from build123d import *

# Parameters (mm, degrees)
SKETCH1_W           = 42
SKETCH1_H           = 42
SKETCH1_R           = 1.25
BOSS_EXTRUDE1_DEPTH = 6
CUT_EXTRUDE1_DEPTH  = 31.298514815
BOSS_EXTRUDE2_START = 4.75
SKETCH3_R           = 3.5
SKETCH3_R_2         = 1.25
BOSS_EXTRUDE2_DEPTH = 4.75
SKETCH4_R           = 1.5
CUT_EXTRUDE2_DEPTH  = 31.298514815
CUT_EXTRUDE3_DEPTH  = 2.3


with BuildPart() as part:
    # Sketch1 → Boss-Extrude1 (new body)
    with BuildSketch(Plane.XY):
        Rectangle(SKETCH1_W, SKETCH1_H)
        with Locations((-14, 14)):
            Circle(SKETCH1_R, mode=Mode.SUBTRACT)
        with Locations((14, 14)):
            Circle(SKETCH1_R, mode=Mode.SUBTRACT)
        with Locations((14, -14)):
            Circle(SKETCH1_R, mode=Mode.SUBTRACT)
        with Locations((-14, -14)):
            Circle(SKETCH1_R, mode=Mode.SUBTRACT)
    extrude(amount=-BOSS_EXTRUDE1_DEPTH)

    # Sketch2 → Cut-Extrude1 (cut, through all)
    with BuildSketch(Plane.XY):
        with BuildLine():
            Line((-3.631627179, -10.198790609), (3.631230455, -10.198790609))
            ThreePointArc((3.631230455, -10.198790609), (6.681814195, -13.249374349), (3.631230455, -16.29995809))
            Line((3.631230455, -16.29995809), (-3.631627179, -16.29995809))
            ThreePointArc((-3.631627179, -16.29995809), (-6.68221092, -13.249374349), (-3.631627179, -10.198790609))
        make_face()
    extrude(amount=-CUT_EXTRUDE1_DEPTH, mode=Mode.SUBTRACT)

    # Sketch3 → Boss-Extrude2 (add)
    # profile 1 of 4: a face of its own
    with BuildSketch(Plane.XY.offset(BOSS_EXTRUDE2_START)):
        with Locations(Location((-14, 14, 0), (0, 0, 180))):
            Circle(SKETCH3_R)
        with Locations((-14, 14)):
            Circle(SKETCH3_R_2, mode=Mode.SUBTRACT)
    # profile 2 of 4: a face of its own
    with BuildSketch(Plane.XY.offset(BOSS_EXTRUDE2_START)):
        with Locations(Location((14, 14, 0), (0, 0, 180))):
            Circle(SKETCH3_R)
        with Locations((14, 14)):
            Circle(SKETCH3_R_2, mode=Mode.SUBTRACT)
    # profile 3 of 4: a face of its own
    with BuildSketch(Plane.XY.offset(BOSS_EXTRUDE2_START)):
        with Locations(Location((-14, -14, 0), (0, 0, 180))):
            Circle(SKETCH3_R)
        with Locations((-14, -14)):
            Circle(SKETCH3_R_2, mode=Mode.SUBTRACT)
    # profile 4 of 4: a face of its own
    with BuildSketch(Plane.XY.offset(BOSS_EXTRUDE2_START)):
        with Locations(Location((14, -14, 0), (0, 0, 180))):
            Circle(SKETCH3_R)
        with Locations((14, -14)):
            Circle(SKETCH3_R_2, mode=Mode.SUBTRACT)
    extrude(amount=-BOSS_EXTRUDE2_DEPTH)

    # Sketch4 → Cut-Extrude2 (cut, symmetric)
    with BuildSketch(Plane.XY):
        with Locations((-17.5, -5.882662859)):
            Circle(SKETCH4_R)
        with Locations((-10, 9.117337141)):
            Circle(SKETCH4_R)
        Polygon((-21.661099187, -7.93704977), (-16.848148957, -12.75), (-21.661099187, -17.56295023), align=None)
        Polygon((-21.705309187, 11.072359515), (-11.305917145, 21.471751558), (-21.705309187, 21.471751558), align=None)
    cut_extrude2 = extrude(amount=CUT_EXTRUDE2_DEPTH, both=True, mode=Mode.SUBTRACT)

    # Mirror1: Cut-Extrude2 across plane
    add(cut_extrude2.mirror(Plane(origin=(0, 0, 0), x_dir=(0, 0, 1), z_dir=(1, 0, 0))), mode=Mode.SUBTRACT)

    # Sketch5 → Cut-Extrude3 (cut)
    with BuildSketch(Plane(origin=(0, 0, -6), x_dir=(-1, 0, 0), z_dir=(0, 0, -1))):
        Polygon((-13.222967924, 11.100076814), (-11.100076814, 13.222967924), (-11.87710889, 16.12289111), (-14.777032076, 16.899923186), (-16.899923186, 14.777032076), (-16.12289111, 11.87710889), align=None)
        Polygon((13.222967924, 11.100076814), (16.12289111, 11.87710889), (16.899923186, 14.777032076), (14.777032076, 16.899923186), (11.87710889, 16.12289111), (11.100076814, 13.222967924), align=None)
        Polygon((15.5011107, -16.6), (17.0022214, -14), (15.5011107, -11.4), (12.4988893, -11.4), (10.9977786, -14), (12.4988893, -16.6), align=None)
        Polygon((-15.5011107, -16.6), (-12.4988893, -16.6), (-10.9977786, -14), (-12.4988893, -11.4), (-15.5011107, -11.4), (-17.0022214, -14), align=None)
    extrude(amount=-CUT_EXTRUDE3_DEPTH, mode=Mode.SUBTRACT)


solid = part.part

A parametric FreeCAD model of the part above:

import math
import FreeCAD as App
import Part
import Sketcher

V = App.Vector
Q = App.Units.Quantity


def add_polygon(sketch, points):
    """Adds a closed chain of lines whose ends are joined by coincident constraints."""
    first, n = sketch.GeometryCount, len(points)
    for a, b in zip(points, points[1:] + points[:1]):
        sketch.addGeometry(Part.LineSegment(App.Vector(*a, 0), App.Vector(*b, 0)), False)
    for i in range(n):
        sketch.addConstraint(Sketcher.Constraint("Coincident", first + i, 2, first + (i + 1) % n, 1))

doc = App.newDocument("Part")
body = doc.addObject("PartDesign::Body", "Body")

# Sketch on XY plane
sketch1 = doc.addObject("Sketcher::SketchObject", "Sketch")
body.addObject(sketch1)
sketch1.AttachmentSupport = (doc.XY_Plane, [""])
sketch1.MapMode = "FlatFace"
add_polygon(sketch1, [(-21, 21), (-21, -21), (21, -21), (21, 21)])  # lines 0-3
sketch1.addGeometry(Part.Circle(V(-14, -14, 0), V(0, 0, 1), 1.2), False)  # 4
sketch1.addGeometry(Part.Circle(V(14, -14, 0), V(0, 0, 1), 1.2), False)  # 5
sketch1.addGeometry(Part.Circle(V(-14, 14, 0), V(0, 0, 1), 1.2), False)  # 6
sketch1.addGeometry(Part.Circle(V(14, 14, 0), V(0, 0, 1), 1.2), False)  # 7
sketch1.addConstraint([
    Sketcher.Constraint("Vertical", 0),
    Sketcher.Constraint("Horizontal", 1),
    Sketcher.Constraint("Vertical", 2),
    Sketcher.Constraint("Horizontal", 3),
    Sketcher.Constraint("Equal", 4, 5),
    Sketcher.Constraint("Equal", 5, 6),
    Sketcher.Constraint("Equal", 6, 7),
    Sketcher.Constraint("Symmetric", 5, 3, 6, 3, -1, 1),
    Sketcher.Constraint("Symmetric", 4, 3, 7, 3, -1, 1),
    Sketcher.Constraint("Symmetric", 0, 2, 2, 2, -1, 1),
    Sketcher.Constraint("Symmetric", 4, 3, 5, 3, -2),
    Sketcher.Constraint("Equal", 3, 0),
    Sketcher.Constraint("Diameter", 4, 2.5),
    Sketcher.Constraint("DistanceX", 1, 1, 1, 2, 42.0),
    Sketcher.Constraint("DistanceX", 4, 3, -1, 1, 14.0),
    Sketcher.Constraint("DistanceY", 4, 3, -1, 1, 14.0),
])
pad1 = doc.addObject("PartDesign::Pad", "Pad")
body.addObject(pad1)
pad1.Profile = sketch1
pad1.Length = 6
pad1.Reversed = True

# Sketch on XY plane
sketch2 = doc.addObject("Sketcher::SketchObject", "Sketch001")
body.addObject(sketch2)
sketch2.AttachmentSupport = (doc.XY_Plane, [""])
sketch2.MapMode = "FlatFace"
sketch2.addGeometry([
    Part.LineSegment(V(3.6, -10.2, 0), V(-3.6, -10.2, 0)),
    Part.ArcOfCircle(Part.Circle(V(-3.6, -13.2, 0), V(0, 0, 1), 3.1), math.radians(90), math.radians(270)),
    Part.LineSegment(V(-3.6, -16.3, 0), V(3.6, -16.3, 0)),
    Part.ArcOfCircle(Part.Circle(V(3.6, -13.2, 0), V(0, 0, 1), 3.1), math.radians(-90), math.radians(90)),
], False)
sketch2.addConstraint([
    Sketcher.Constraint("Tangent", 0, 2, 1, 1),
    Sketcher.Constraint("Tangent", 1, 2, 2, 1),
    Sketcher.Constraint("Tangent", 2, 2, 3, 1),
    Sketcher.Constraint("Tangent", 3, 2, 0, 1),
    Sketcher.Constraint("Horizontal", 0),
    Sketcher.Constraint("Horizontal", 2),
    Sketcher.Constraint("Radius", 1, 3.050584),
    Sketcher.Constraint("DistanceX", 0, 2, 0, 1, 7.262858),
    Sketcher.Constraint("DistanceX", -1, 1, 3, 3, 3.63123),
    Sketcher.Constraint("DistanceY", 0, 2, -1, 1, 10.198791),
])
pocket1 = doc.addObject("PartDesign::Pocket", "Pocket")
body.addObject(pocket1)
pocket1.Profile = sketch2
pocket1.Type = "ThroughAll"

# Sketch on XY plane
sketch3 = doc.addObject("Sketcher::SketchObject", "Sketch002")
body.addObject(sketch3)
sketch3.AttachmentSupport = (doc.XY_Plane, [""])
sketch3.MapMode = "FlatFace"
sketch3.AttachmentOffset = App.Placement(V(0, 0, 4.75), App.Rotation())
sketch3.addGeometry([
    Part.Circle(V(-14, 14, 0), V(0, 0, 1), 3.5),  # 0
    Part.Circle(V(-14, 14, 0), V(0, 0, 1), 1.2),  # 1
    Part.Circle(V(14, 14, 0), V(0, 0, 1), 3.5),  # 2
    Part.Circle(V(14, 14, 0), V(0, 0, 1), 1.2),  # 3
    Part.Circle(V(-14, -14, 0), V(0, 0, 1), 3.5),  # 4
    Part.Circle(V(-14, -14, 0), V(0, 0, 1), 1.2),  # 5
    Part.Circle(V(14, -14, 0), V(0, 0, 1), 3.5),  # 6
    Part.Circle(V(14, -14, 0), V(0, 0, 1), 1.2),  # 7
], False)
sketch3.addConstraint([
    Sketcher.Constraint("Coincident", 1, 3, 0, 3),
    Sketcher.Constraint("Coincident", 3, 3, 2, 3),
    Sketcher.Constraint("Coincident", 5, 3, 4, 3),
    Sketcher.Constraint("Coincident", 7, 3, 6, 3),
    Sketcher.Constraint("Equal", 0, 2),
    Sketcher.Constraint("Equal", 1, 3),
    Sketcher.Constraint("Equal", 2, 4),
    Sketcher.Constraint("Equal", 3, 5),
    Sketcher.Constraint("Equal", 4, 6),
    Sketcher.Constraint("Equal", 5, 7),
    Sketcher.Constraint("Symmetric", 2, 3, 4, 3, -1, 1),
    Sketcher.Constraint("Symmetric", 0, 3, 6, 3, -1, 1),
    Sketcher.Constraint("Symmetric", 0, 3, 2, 3, -2),
    Sketcher.Constraint("Diameter", 0, 7.0),
    Sketcher.Constraint("Diameter", 1, 2.5),
    Sketcher.Constraint("DistanceX", 0, 3, -1, 1, 14.0),
    Sketcher.Constraint("DistanceY", -1, 1, 0, 3, 14.0),
])
pad2 = doc.addObject("PartDesign::Pad", "Pad001")
body.addObject(pad2)
pad2.Profile = sketch3
pad2.Length = 4.75
pad2.Reversed = True

# Sketch on XY plane
sketch4 = doc.addObject("Sketcher::SketchObject", "Sketch003")
body.addObject(sketch4)
sketch4.AttachmentSupport = (doc.XY_Plane, [""])
sketch4.MapMode = "FlatFace"
sketch4.addGeometry(Part.Circle(V(-17.5, -5.9, 0), V(0, 0, 1), 1.5), False)  # 0
sketch4.addGeometry(Part.Circle(V(-10, 9.1, 0), V(0, 0, 1), 1.5), False)  # 1
add_polygon(sketch4, [(-16.8, -12.8), (-21.7, -7.9), (-21.7, -17.6)])  # lines 2-4
add_polygon(sketch4, [(-21.7, 11.1), (-11.3, 21.5), (-21.7, 21.5)])  # lines 5-7
sketch4.addConstraint([
    Sketcher.Constraint("Vertical", 3),
    Sketcher.Constraint("Horizontal", 6),
    Sketcher.Constraint("Vertical", 7),
    Sketcher.Constraint("Equal", 0, 1),
    Sketcher.Constraint("Perpendicular", 2, 4),
    Sketcher.Constraint("Parallel", 4, 5),
    Sketcher.Constraint("Equal", 6, 7),
    Sketcher.Constraint("Diameter", 0, 3.0),
    Sketcher.Constraint("DistanceX", 1, 3, -1, 1, 10.0),
    Sketcher.Constraint("DistanceY", 0, 3, 1, 3, 15.0),
    Sketcher.Constraint("DistanceX", 0, 3, -1, 1, 17.5),
    Sketcher.Constraint("DistanceY", 4, 2, -1, 1, 12.75),
    Sketcher.Constraint("DistanceY", 3, 2, 3, 1, 9.6259),
    Sketcher.Constraint("DistanceX", 2, 2, -1, 1, 21.661099),
    Sketcher.Constraint("DistanceY", 2, 2, 5, 2, 29.408801),
    Sketcher.Constraint("Distance", 5, 14.706961),
    Sketcher.Constraint("DistanceX", 6, 2, -1, 1, 21.705309),
    Sketcher.Constraint("DistanceY", 0, 3, -1, 1, 5.882663),
])
pocket2 = doc.addObject("PartDesign::Pocket", "Pocket001")
body.addObject(pocket2)
pocket2.Profile = sketch4
pocket2.Length = 62.59703
pocket2.Midplane = True
doc.recompute()

mirrored = doc.addObject("PartDesign::Mirrored", "Mirrored")
body.addObject(mirrored)
mirrored.Originals = [pocket2]
mirrored.MirrorPlane = (doc.YZ_Plane, [""])
body.Tip = mirrored

# Sketch on XY plane
sketch5 = doc.addObject("Sketcher::SketchObject", "Sketch004")
body.addObject(sketch5)
sketch5.AttachmentSupport = (doc.XY_Plane, [""])
sketch5.MapMode = "FlatFace"
sketch5.AttachmentOffset = App.Placement(V(0, 0, -6), App.Rotation())
add_polygon(sketch5, [(13.2, 11.1), (11.1, 13.2), (11.9, 16.1), (14.8, 16.9), (16.9, 14.8), (16.1, 11.9)])  # lines 0-5
add_polygon(sketch5, [(-13.2, 11.1), (-16.1, 11.9), (-16.9, 14.8), (-14.8, 16.9), (-11.9, 16.1), (-11.1, 13.2)])  # lines 6-11
add_polygon(sketch5, [(-15.5, -16.6), (-17, -14), (-15.5, -11.4), (-12.5, -11.4), (-11, -14), (-12.5, -16.6)])  # lines 12-17
add_polygon(sketch5, [(15.5, -16.6), (12.5, -16.6), (11, -14), (12.5, -11.4), (15.5, -11.4), (17, -14)])  # lines 18-23
sketch5.addConstraint([
    Sketcher.Constraint("Horizontal", 14),
    Sketcher.Constraint("Horizontal", 17),
    Sketcher.Constraint("Horizontal", 18),
    Sketcher.Constraint("Horizontal", 21),
    Sketcher.Constraint("Symmetric", 4, 2, 6, 2, -2),
    Sketcher.Constraint("Symmetric", 3, 2, 7, 2, -2),
    Sketcher.Constraint("Symmetric", 2, 2, 8, 2, -2),
    Sketcher.Constraint("Symmetric", 1, 2, 9, 2, -2),
    Sketcher.Constraint("Symmetric", 0, 2, 10, 2, -2),
    Sketcher.Constraint("Symmetric", 5, 2, 11, 2, -2),
    Sketcher.Constraint("Symmetric", 16, 2, 18, 2, -2),
    Sketcher.Constraint("Symmetric", 15, 2, 19, 2, -2),
    Sketcher.Constraint("Symmetric", 14, 2, 20, 2, -2),
    Sketcher.Constraint("Symmetric", 12, 2, 22, 2, -2),
    Sketcher.Constraint("Parallel", 0, 3),
    Sketcher.Constraint("Parallel", 1, 4),
    Sketcher.Constraint("Parallel", 2, 5),
    Sketcher.Constraint("Perpendicular", 4, 6),
    Sketcher.Constraint("Perpendicular", 3, 8),
    Sketcher.Constraint("Parallel", 12, 15),
    Sketcher.Constraint("Parallel", 13, 16),
    Sketcher.Constraint("Parallel", 15, 19),
    Sketcher.Constraint("Parallel", 19, 22),
    Sketcher.Constraint("Parallel", 20, 23),
    Sketcher.Constraint("Horizontal", 12, 2, 15, 2),
    Sketcher.Constraint("Vertical", 14, 2, 16, 2),
    Sketcher.Constraint("Equal", 0, 1),
    Sketcher.Constraint("Equal", 1, 2),
    Sketcher.Constraint("Equal", 2, 3),
    Sketcher.Constraint("Equal", 11, 12),
    Sketcher.Constraint("Angle", 1, Q("75 deg")),
    Sketcher.Constraint("Angle", 12, Q("120 deg")),
    Sketcher.Constraint("DistanceY", 12, 2, -1, 1, 14.0),
    Sketcher.Constraint("DistanceX", 6, 2, 1, 2, 28.0),
    Sketcher.Constraint("DistanceX", 17, 2, 18, 2, 28.0),
    Sketcher.Constraint("DistanceY", 13, 2, -1, 1, 11.4),
    Sketcher.Constraint("DistanceX", 6, 2, 14, 2, 3.624002),
    Sketcher.Constraint("DistanceY", -1, 1, 1, 2, 16.122891),
])
pocket3 = doc.addObject("PartDesign::Pocket", "Pocket002")
body.addObject(pocket3)
pocket3.Profile = sketch5
pocket3.Length = 2.3
pocket3.Reversed = True

doc.recompute()
